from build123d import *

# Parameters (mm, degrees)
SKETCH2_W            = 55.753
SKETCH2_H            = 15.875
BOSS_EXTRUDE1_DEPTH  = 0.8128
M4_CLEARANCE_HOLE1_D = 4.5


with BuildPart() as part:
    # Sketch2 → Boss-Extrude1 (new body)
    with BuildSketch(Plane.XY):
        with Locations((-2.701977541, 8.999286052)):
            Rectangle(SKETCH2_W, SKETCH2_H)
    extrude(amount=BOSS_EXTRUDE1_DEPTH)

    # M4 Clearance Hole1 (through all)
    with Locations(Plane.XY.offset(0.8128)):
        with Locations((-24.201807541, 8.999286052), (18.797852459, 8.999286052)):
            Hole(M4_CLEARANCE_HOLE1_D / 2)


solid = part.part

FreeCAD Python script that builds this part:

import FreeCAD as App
import Part
import Sketcher
Q = App.Units.Quantity


def add_polygon(sketch, points):
    """Adds a closed chain of lines whose ends are joined by coincident constraints."""
    first, n = sketch.GeometryCount, len(points)
    for a, b in zip(points, points[1:] + points[:1]):
        sketch.addGeometry(Part.LineSegment(App.Vector(*a, 0), App.Vector(*b, 0)), False)
    for i in range(n):
        sketch.addConstraint(Sketcher.Constraint("Coincident", first + i, 2, first + (i + 1) % n, 1))

doc = App.newDocument("Part")
params = doc.addObject("Spreadsheet::Sheet", "Params")
for row, (alias, value) in enumerate([
    ("sketch1_width", "2.195 in"),
    ("sketch1_height", "0.625 in"),
    ("pad1_length", "0.032 in"),
    ("hole_diameter", "4.5 mm"),
], start=1):
    params.set(f"A{row}", alias)
    params.set(f"B{row}", "=" + value)
    params.setAlias(f"B{row}", alias)

body = doc.addObject("PartDesign::Body", "Body")

sketch1 = body.newObject("Sketcher::SketchObject", "Sketch")
sketch1.AttachmentSupport = (doc.getObject("XY_Plane"), [""])
sketch1.MapMode = "FlatFace"
add_polygon(sketch1, [(-31, 17), (-31, 1), (25, 1), (25, 17)])
sketch1.addConstraint([
    Sketcher.Constraint("Vertical", 0),
    Sketcher.Constraint("Horizontal", 1),
    Sketcher.Constraint("Vertical", 2),
    Sketcher.Constraint("Horizontal", 3),
    Sketcher.Constraint("DistanceX", 1, 1, 1, 2, Q("2.195 in")),
    Sketcher.Constraint("DistanceY", 0, 2, 0, 1, Q("0.625 in")),
    Sketcher.Constraint("DistanceX", 0, 2, -1, 1, Q("30.578478 mm")),
    Sketcher.Constraint("DistanceY", -1, 1, 0, 2, Q("1.061786 mm")),
])
sketch1.setExpression("Constraints[8]", "Params.sketch1_width")
sketch1.setExpression("Constraints[9]", "Params.sketch1_height")
pad1 = body.newObject("PartDesign::Pad", "Pad")
pad1.Profile = sketch1
pad1.setExpression("Length", "Params.pad1_length")

sketch2 = body.newObject("Sketcher::SketchObject", "Sketch001")
sketch2.AttachmentSupport = (doc.getObject("XY_Plane"), [""])
sketch2.MapMode = "FlatFace"
sketch2.AttachmentOffset = App.Placement(App.Vector(0, 0, 0.032 * 25.4), App.Rotation())
sketch2.addGeometry([
    Part.Circle(App.Vector(-24.2, 9, 0), App.Vector(0, 0, 1), 2.2),
    Part.Circle(App.Vector(18.8, 9, 0), App.Vector(0, 0, 1), 2.2),
], False)
sketch2.addConstraint([
    Sketcher.Constraint("Equal", 0, 1),
    Sketcher.Constraint("Horizontal", 0, 3, 1, 3),
    Sketcher.Constraint("Diameter", 0, Q("4.5 mm")),
    Sketcher.Constraint("DistanceX", 0, 3, 1, 3, Q("1.6929 in")),
    Sketcher.Constraint("DistanceX", 0, 3, -1, 1, Q("24.201808 mm")),
    Sketcher.Constraint("DistanceY", -1, 1, 0, 3, Q("8.999286 mm")),
])
doc.recompute()
hole = body.newObject("PartDesign::Hole", "Hole")
hole.Profile = sketch2
hole.ThreadType = "None"
hole.setExpression("Diameter", "Params.hole_diameter")
hole.DepthType = "ThroughAll"

doc.recompute()
